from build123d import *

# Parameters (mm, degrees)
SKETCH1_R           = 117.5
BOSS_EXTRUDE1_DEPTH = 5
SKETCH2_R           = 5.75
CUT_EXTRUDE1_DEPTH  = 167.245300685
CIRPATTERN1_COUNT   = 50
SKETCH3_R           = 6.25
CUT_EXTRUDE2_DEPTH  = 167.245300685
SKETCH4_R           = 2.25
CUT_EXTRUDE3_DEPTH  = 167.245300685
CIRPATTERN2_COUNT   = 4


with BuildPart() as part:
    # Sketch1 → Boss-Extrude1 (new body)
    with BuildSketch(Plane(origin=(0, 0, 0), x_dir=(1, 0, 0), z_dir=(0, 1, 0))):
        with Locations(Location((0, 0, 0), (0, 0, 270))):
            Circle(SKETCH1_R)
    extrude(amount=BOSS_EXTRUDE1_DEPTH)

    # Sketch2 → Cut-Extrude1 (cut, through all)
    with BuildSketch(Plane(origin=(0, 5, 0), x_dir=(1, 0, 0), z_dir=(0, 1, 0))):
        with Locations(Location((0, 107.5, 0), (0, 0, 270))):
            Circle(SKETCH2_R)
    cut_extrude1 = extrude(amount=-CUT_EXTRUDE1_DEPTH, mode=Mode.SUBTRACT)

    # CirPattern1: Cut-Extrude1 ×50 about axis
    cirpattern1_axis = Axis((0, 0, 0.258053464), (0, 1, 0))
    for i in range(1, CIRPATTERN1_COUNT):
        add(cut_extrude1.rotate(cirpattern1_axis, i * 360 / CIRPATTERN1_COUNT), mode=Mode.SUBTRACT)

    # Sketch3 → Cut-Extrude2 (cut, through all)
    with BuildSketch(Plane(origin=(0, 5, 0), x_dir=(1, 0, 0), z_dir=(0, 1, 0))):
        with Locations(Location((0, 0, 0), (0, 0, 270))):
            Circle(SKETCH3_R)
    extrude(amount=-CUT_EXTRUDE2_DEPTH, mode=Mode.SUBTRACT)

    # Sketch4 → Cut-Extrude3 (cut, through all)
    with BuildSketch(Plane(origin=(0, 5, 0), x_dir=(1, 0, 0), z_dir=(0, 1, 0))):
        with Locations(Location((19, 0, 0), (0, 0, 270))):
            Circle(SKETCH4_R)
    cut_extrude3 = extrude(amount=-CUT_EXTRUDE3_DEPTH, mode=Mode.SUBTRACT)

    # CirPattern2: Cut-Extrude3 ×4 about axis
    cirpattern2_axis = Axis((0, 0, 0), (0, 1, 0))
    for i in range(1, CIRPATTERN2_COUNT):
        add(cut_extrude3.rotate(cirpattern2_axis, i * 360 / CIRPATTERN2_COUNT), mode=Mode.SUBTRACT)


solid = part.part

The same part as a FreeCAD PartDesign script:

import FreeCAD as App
import Part
import Sketcher
Q = App.Units.Quantity

doc = App.newDocument("Part")
body = doc.addObject("PartDesign::Body", "Body")

sketch1 = body.newObject("Sketcher::SketchObject", "Sketch")
sketch1.AttachmentSupport = (doc.getObject("XZ_Plane"), [""])
sketch1.MapMode = "FlatFace"
sketch1.addGeometry(Part.Circle(App.Vector(0, 0, 0), App.Vector(0, 0, 1), 118), False)
sketch1.addConstraint(Sketcher.Constraint("Coincident", 0, 3, -1, 1))
sketch1.addConstraint(Sketcher.Constraint("Diameter", 0, Q("235 mm")))
pad1 = body.newObject("PartDesign::Pad", "Pad")
pad1.Profile = sketch1
pad1.Length = 5
pad1.Reversed = True

sketch2 = body.newObject("Sketcher::SketchObject", "Sketch001")
sketch2.AttachmentSupport = (doc.getObject("XZ_Plane"), [""])
sketch2.MapMode = "FlatFace"
sketch2.AttachmentOffset = App.Placement(App.Vector(0, 0, -5), App.Rotation())
sketch2.addGeometry(Part.Circle(App.Vector(0, -108, 0), App.Vector(0, 0, 1), 6), False)
sketch2.addConstraint(Sketcher.Constraint("PointOnObject", 0, 3, -2))
sketch2.addConstraint(Sketcher.Constraint("Diameter", 0, Q("11.5 mm")))
sketch2.addConstraint(Sketcher.Constraint("DistanceY", 0, 3, -1, 1, Q("107.5 mm")))
pocket1 = body.newObject("PartDesign::Pocket", "Pocket")
pocket1.Profile = sketch2
pocket1.Type = "ThroughAll"
pocket1.Reversed = True
doc.recompute()

datumline = body.newObject("PartDesign::Line", "DatumLine")
datumline.Placement = App.Placement(App.Vector(0, 0, 0.258053), App.Rotation(App.Vector(0, 0, 1), App.Vector(0, 1, 0)))
polarpattern = body.newObject("PartDesign::PolarPattern", "PolarPattern")
polarpattern.Originals = [pocket1]
polarpattern.Axis = (datumline, [""])
polarpattern.Angle = 360
polarpattern.Occurrences = 50
body.Tip = polarpattern

sketch3 = body.newObject("Sketcher::SketchObject", "Sketch002")
sketch3.AttachmentSupport = (doc.getObject("XZ_Plane"), [""])
sketch3.MapMode = "FlatFace"
sketch3.AttachmentOffset = App.Placement(App.Vector(0, 0, -5), App.Rotation())
sketch3.addGeometry(Part.Circle(App.Vector(0, 0, 0), App.Vector(0, 0, 1), 6), False)
sketch3.addConstraint(Sketcher.Constraint("Coincident", 0, 3, -1, 1))
sketch3.addConstraint(Sketcher.Constraint("Diameter", 0, Q("12.5 mm")))
pocket2 = body.newObject("PartDesign::Pocket", "Pocket001")
pocket2.Profile = sketch3
pocket2.Type = "ThroughAll"
pocket2.Reversed = True

sketch4 = body.newObject("Sketcher::SketchObject", "Sketch003")
sketch4.AttachmentSupport = (doc.getObject("XZ_Plane"), [""])
sketch4.MapMode = "FlatFace"
sketch4.AttachmentOffset = App.Placement(App.Vector(0, 0, -5), App.Rotation())
sketch4.addGeometry(Part.Circle(App.Vector(19, 0, 0), App.Vector(0, 0, 1), 2.2), False)
sketch4.addConstraint(Sketcher.Constraint("PointOnObject", 0, 3, -1))
sketch4.addConstraint(Sketcher.Constraint("Diameter", 0, Q("4.5 mm")))
sketch4.addConstraint(Sketcher.Constraint("DistanceX", -1, 1, 0, 3, Q("19 mm")))
pocket3 = body.newObject("PartDesign::Pocket", "Pocket002")
pocket3.Profile = sketch4
pocket3.Type = "ThroughAll"
pocket3.Reversed = True
doc.recompute()

polarpattern2 = body.newObject("PartDesign::PolarPattern", "PolarPattern001")
polarpattern2.Originals = [pocket3]
polarpattern2.Axis = (doc.getObject("Y_Axis"), [""])
polarpattern2.Angle = 360
polarpattern2.Occurrences = 4
body.Tip = polarpattern2

doc.recompute()
